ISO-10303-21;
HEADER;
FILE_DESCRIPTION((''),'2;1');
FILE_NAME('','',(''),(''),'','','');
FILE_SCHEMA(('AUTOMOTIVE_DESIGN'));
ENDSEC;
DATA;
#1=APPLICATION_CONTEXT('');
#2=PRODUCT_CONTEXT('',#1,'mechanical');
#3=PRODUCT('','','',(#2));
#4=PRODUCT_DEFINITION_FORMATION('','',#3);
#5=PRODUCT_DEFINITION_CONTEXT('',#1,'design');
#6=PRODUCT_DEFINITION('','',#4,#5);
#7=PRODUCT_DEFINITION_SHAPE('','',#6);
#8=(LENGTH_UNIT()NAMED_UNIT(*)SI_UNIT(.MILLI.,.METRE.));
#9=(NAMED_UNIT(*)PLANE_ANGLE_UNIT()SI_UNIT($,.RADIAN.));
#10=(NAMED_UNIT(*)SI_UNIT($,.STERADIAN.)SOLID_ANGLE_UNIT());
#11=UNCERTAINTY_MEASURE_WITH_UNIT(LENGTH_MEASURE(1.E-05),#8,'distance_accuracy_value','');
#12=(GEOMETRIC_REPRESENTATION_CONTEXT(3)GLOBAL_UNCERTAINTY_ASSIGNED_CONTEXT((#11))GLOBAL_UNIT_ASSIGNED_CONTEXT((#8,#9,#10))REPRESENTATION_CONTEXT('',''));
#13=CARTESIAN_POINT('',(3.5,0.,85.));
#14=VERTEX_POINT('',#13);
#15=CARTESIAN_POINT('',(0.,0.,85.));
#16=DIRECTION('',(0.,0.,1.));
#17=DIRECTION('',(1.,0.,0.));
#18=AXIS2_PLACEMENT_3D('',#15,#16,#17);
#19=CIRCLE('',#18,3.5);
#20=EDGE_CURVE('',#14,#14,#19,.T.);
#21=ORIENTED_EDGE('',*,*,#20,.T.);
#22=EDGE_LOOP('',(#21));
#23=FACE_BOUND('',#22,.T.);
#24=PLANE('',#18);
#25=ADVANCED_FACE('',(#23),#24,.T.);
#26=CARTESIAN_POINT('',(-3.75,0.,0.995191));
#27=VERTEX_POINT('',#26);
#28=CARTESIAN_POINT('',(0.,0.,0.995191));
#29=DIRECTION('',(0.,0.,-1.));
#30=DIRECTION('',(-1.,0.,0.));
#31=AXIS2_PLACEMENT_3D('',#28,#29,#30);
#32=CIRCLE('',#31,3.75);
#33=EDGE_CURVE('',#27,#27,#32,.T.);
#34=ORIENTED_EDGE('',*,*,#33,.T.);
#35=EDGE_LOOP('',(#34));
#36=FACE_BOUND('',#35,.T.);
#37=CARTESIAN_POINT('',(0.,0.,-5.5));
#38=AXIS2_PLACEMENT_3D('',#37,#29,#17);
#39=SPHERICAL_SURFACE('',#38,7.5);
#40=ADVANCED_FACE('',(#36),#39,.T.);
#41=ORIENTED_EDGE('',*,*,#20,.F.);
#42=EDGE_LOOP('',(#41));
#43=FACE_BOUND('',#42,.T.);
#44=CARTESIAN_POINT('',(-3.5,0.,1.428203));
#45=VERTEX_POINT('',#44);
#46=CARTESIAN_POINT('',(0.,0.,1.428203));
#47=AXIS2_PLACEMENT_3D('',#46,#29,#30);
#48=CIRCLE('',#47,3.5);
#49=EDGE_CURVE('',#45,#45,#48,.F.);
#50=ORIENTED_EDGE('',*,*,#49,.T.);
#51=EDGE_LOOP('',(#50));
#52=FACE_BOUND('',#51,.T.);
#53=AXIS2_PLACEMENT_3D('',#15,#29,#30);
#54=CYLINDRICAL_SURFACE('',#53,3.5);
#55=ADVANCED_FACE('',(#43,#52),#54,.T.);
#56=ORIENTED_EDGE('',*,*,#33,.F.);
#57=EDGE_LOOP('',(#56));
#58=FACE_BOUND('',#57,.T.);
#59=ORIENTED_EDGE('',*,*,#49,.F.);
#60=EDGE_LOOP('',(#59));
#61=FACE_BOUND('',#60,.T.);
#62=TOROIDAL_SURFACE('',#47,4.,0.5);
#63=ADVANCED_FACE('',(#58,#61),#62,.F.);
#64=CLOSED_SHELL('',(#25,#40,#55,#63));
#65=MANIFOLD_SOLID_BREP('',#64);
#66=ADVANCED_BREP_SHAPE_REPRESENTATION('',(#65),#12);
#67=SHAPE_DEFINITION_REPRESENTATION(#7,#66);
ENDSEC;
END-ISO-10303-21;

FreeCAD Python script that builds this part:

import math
import FreeCAD as App
import Part
import Sketcher
from FreeCAD import Vector


def edges_at(feature, points):
    """Names of the edges that pass closest to the given points."""
    edges = feature.Shape.Edges
    near = lambda p: min(range(len(edges)), key=lambda i: edges[i].distToShape(Part.Vertex(*p))[0])
    return sorted({f"Edge{near(p) + 1}" for p in points})

doc = App.newDocument("Part")
body = doc.addObject("PartDesign::Body", "Body")

# Sketch on XY plane
sketch1 = body.newObject("Sketcher::SketchObject", "Sketch")
sketch1.AttachmentSupport = (doc.getObject("XY_Plane"), [""])
sketch1.MapMode = "FlatFace"
sketch1.addGeometry(Part.Circle(Vector(0, 0, 0), Vector(0, 0, 1), 3.5), False)
sketch1.addConstraint([
    Sketcher.Constraint("Coincident", 0, 3, -1, 1),
    Sketcher.Constraint("Diameter", 0, 7.0),
])
pad1 = body.newObject("PartDesign::Pad", "Pad")
pad1.Profile = sketch1
pad1.Length = 85

# Sketch on XZ plane
sketch2 = body.newObject("Sketcher::SketchObject", "Sketch001")
sketch2.AttachmentSupport = (doc.getObject("XZ_Plane"), [""])
sketch2.MapMode = "FlatFace"
sketch2.addGeometry([
    Part.LineSegment(Vector(0, 2, 0), Vector(0, -13, 0)),
    Part.ArcOfCircle(Part.Circle(Vector(0, -5.5, 0), Vector(0, 0, 1), 7.5), math.radians(90), math.radians(270)),
], False)
sketch2.addConstraint([
    Sketcher.Constraint("Coincident", 0, 1, 1, 1),
    Sketcher.Constraint("Coincident", 1, 2, 0, 2),
    Sketcher.Constraint("Vertical", 0),
    Sketcher.Constraint("PointOnObject", 1, 3, -2),
    Sketcher.Constraint("PointOnObject", 0, 1, -2),
    Sketcher.Constraint("Radius", 1, 7.5),
    Sketcher.Constraint("DistanceY", -1, 1, 0, 1, 2.0),
])
revolution = body.newObject("PartDesign::Revolution", "Revolution")
revolution.Profile = sketch2
revolution.ReferenceAxis = (sketch2, ["V_Axis"])
revolution.Angle = 360
doc.recompute()

fillet = body.newObject("PartDesign::Fillet", "Fillet")
fillet.Base = (revolution, edges_at(revolution, [(0, 3.5, 1.133)]))
fillet.Radius = 0.5

doc.recompute()
